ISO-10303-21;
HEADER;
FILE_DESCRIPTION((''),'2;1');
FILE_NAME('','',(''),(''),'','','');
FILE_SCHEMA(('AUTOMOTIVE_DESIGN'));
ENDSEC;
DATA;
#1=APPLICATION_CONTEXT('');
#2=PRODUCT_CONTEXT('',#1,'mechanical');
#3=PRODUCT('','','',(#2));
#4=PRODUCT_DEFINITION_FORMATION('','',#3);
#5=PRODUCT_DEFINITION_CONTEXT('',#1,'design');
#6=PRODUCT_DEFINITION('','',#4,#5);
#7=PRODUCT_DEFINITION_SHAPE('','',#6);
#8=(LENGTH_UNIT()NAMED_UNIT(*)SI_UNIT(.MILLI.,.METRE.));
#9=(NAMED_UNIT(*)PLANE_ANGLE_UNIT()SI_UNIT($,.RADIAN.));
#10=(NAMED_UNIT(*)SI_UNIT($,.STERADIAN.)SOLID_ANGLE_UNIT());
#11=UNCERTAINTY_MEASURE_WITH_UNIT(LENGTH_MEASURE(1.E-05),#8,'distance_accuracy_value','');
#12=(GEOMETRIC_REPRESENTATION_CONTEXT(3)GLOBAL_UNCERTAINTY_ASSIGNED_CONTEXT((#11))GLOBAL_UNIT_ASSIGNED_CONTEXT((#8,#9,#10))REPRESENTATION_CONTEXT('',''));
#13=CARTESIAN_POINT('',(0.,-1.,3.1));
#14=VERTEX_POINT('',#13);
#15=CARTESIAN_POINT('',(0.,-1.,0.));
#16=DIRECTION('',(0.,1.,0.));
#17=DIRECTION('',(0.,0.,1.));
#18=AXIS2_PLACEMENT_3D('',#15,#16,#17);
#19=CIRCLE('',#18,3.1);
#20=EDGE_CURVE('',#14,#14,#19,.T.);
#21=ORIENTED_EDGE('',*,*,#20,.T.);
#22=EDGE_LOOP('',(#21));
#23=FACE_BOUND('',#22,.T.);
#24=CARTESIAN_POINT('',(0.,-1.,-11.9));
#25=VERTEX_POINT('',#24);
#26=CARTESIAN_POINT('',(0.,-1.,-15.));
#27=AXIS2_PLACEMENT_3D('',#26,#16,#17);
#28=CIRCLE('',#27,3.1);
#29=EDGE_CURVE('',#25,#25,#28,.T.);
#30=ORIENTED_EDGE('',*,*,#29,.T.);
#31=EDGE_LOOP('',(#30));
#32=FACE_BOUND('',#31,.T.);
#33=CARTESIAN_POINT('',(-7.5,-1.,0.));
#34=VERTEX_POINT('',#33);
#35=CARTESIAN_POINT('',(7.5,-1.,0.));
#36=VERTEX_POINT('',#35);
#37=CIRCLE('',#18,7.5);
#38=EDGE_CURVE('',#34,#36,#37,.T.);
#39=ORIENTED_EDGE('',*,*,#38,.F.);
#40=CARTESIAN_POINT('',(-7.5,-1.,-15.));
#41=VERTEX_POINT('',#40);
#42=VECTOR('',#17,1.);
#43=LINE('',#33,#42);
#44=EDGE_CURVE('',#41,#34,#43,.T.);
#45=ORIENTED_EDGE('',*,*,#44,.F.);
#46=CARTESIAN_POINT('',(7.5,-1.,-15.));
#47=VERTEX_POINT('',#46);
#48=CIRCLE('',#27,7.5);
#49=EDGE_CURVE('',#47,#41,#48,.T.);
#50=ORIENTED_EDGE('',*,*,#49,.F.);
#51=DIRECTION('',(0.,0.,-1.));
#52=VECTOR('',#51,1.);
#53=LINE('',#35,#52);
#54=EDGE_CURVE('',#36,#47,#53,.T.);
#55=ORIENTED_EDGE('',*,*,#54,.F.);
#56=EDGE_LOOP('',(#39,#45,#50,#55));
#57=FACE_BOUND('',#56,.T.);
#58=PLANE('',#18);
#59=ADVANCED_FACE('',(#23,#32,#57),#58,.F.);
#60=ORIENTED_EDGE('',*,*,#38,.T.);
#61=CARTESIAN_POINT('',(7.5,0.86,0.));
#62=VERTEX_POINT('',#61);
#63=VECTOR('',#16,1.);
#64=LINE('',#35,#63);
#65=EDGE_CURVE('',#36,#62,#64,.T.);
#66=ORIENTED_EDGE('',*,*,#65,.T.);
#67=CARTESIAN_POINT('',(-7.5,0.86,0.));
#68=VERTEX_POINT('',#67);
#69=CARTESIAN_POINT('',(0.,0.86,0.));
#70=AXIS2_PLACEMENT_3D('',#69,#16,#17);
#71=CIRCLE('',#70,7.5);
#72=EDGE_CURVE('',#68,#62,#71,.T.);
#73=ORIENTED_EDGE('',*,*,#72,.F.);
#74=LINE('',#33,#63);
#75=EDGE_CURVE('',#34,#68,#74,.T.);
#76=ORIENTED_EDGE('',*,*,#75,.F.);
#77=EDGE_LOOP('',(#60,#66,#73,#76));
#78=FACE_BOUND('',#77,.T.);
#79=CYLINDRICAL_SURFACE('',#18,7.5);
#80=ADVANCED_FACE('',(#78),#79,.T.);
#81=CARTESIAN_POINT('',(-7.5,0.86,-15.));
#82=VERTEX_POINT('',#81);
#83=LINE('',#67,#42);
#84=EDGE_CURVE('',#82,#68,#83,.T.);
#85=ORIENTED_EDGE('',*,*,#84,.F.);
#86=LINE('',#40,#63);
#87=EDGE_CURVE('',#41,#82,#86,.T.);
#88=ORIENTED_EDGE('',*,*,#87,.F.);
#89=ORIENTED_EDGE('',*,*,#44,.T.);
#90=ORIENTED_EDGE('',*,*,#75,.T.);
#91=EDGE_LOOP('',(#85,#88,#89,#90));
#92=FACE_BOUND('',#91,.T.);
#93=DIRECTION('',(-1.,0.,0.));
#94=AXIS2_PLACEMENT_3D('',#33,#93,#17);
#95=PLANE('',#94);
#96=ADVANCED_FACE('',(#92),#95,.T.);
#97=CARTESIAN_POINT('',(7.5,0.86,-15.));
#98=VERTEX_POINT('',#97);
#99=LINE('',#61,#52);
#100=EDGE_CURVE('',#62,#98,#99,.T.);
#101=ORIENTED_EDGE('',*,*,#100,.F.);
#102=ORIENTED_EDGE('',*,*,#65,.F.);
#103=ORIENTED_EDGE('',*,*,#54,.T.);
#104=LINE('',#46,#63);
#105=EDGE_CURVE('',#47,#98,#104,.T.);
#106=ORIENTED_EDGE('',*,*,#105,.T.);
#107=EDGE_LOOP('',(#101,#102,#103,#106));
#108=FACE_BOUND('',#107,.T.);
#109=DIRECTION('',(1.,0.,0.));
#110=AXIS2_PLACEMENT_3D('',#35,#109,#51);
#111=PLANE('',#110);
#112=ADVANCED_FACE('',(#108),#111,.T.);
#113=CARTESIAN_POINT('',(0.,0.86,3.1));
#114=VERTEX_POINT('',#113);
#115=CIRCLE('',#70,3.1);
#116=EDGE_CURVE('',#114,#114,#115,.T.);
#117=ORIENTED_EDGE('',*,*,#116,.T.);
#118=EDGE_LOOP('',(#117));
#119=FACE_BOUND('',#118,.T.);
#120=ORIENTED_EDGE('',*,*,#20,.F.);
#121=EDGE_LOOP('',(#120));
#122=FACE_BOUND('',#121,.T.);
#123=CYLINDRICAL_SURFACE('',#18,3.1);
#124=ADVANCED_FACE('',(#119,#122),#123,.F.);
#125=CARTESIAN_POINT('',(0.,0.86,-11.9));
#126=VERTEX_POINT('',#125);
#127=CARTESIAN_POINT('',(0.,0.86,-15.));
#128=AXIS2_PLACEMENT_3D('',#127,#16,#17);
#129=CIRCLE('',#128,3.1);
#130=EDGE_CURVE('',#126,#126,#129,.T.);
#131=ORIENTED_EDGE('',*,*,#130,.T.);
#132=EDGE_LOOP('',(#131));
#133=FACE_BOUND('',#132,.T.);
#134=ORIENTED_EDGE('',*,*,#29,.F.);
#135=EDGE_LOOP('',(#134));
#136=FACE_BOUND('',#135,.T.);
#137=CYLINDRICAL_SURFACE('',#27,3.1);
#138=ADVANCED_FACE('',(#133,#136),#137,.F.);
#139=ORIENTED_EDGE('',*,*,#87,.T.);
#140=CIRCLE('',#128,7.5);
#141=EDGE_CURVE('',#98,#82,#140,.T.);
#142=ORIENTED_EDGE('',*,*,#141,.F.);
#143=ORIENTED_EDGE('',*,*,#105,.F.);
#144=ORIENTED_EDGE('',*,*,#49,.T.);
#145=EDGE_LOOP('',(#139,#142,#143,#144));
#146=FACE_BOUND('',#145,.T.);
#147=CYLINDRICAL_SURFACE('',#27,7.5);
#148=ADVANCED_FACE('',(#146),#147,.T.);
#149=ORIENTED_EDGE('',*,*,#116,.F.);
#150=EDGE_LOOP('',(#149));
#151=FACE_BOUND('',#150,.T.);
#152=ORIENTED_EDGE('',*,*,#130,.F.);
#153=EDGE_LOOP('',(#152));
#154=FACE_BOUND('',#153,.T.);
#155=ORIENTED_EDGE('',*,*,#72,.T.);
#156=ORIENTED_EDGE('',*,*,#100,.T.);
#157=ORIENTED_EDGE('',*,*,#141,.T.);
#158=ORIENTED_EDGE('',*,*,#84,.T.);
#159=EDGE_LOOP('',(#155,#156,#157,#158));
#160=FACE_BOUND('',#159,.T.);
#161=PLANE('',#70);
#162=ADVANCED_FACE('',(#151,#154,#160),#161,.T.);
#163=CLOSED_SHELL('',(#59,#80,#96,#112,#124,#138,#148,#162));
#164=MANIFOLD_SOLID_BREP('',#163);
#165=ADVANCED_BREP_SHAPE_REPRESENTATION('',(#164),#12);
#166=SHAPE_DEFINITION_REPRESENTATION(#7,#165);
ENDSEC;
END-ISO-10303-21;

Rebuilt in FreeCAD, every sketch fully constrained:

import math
import FreeCAD as App
import Part
import Sketcher

doc = App.newDocument("Part")
body = doc.addObject("PartDesign::Body", "Body")

# Sketch on XZ plane
sketch1 = doc.addObject("Sketcher::SketchObject", "Sketch")
body.addObject(sketch1)
sketch1.AttachmentSupport = (doc.XZ_Plane, [""])
sketch1.MapMode = "FlatFace"
sketch1.addGeometry([
    Part.LineSegment(App.Vector(-7.5, -15, 0), App.Vector(-7.5, 0, 0)),  # 0
    Part.ArcOfCircle(Part.Circle(App.Vector(0, 0, 0), App.Vector(0, 0, 1), 7.5), math.radians(0), math.radians(180)),  # 1
    Part.LineSegment(App.Vector(7.5, 0, 0), App.Vector(7.5, -15, 0)),  # 2
    Part.ArcOfCircle(Part.Circle(App.Vector(0, -15, 0), App.Vector(0, 0, 1), 7.5), math.radians(180), math.radians(360)),  # 3
    Part.Circle(App.Vector(0, 0, 0), App.Vector(0, 0, 1), 3.1),  # 4
    Part.Circle(App.Vector(0, -15, 0), App.Vector(0, 0, 1), 3.1),  # 5
], False)
sketch1.addConstraint([
    Sketcher.Constraint("Tangent", 0, 2, 1, 2),
    Sketcher.Constraint("Tangent", 1, 1, 2, 1),
    Sketcher.Constraint("Tangent", 2, 2, 3, 2),
    Sketcher.Constraint("Tangent", 3, 1, 0, 1),
    Sketcher.Constraint("Vertical", 0),
    Sketcher.Constraint("Vertical", 2),
    Sketcher.Constraint("Coincident", 1, 3, -1, 1),
    Sketcher.Constraint("Coincident", 4, 3, -1, 1),
    Sketcher.Constraint("Coincident", 5, 3, 3, 3),
    Sketcher.Constraint("Equal", 4, 5),
    Sketcher.Constraint("Diameter", 4, 6.2),
    Sketcher.Constraint("Radius", 1, 7.5),
    Sketcher.Constraint("DistanceY", 0, 1, 0, 2, 15.0),
])
pad1 = doc.addObject("PartDesign::Pad", "Pad")
body.addObject(pad1)
pad1.Profile = sketch1
pad1.Type = "TwoLengths"
pad1.Length = 0.86
pad1.Length2 = 1
pad1.Reversed = True

doc.recompute()
